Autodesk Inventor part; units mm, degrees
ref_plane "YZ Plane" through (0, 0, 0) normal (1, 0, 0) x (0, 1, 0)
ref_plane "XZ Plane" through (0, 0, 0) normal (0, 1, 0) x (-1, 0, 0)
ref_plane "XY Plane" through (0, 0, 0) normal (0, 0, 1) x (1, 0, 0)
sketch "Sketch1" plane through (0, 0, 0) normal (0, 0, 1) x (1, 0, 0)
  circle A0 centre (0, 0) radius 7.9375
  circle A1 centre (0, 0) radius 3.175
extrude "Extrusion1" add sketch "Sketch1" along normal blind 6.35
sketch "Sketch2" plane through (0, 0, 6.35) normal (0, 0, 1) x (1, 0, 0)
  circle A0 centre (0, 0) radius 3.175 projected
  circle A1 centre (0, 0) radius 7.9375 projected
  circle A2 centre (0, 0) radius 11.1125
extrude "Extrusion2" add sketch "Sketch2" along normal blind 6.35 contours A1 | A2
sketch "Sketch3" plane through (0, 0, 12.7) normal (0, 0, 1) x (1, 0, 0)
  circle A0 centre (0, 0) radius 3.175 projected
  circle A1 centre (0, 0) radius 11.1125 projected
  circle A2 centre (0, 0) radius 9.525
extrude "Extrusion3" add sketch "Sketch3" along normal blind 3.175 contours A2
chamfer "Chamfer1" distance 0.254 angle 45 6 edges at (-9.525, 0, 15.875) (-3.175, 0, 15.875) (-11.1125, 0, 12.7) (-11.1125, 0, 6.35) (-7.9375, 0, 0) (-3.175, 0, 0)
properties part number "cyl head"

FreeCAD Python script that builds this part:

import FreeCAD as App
import Part
import Sketcher
from FreeCAD import Vector
Q = App.Units.Quantity


def edges_at(feature, points):
    """Names of the edges that pass closest to the given points."""
    edges = feature.Shape.Edges
    near = lambda p: min(range(len(edges)), key=lambda i: edges[i].distToShape(Part.Vertex(*p))[0])
    return sorted({f"Edge{near(p) + 1}" for p in points})

doc = App.newDocument("Part")
body = doc.addObject("PartDesign::Body", "Body")

# Sketch on XY plane
sketch1 = body.newObject("Sketcher::SketchObject", "Sketch")
sketch1.AttachmentSupport = (doc.getObject("XY_Plane"), [""])
sketch1.MapMode = "FlatFace"
sketch1.addGeometry([
    Part.Circle(Vector(0, 0, 0), Vector(0, 0, 1), 7.9375),
    Part.Circle(Vector(0, 0, 0), Vector(0, 0, 1), 3.175),
], False)
sketch1.addConstraint([
    Sketcher.Constraint("Coincident", 0, 3, -1, 1),
    Sketcher.Constraint("Coincident", 1, 3, -1, 1),
    Sketcher.Constraint("Diameter", 1, Q("0.25 in")),
    Sketcher.Constraint("Diameter", 0, Q("0.625 in")),
])
pad1 = body.newObject("PartDesign::Pad", "Pad")
pad1.Profile = sketch1
pad1.Length = Q("0.25 in")

# Sketch on XY plane
sketch2 = body.newObject("Sketcher::SketchObject", "Sketch001")
sketch2.AttachmentSupport = (doc.getObject("XY_Plane"), [""])
sketch2.MapMode = "FlatFace"
sketch2.AttachmentOffset = App.Placement(Vector(0, 0, 0.25 * 25.4), App.Rotation())
sketch2.addGeometry([
    Part.Circle(Vector(0, 0, 0), Vector(0, 0, 1), 11.1125),
    Part.Circle(Vector(0, 0, 0), Vector(0, 0, 1), 3.175),
], False)
sketch2.addConstraint([
    Sketcher.Constraint("Coincident", 0, 3, -1, 1),
    Sketcher.Constraint("Coincident", 1, 3, -1, 1),
    Sketcher.Constraint("Diameter", 1, Q("0.25 in")),
    Sketcher.Constraint("Diameter", 0, Q("0.875 in")),
])
pad2 = body.newObject("PartDesign::Pad", "Pad001")
pad2.Profile = sketch2
pad2.Length = Q("0.25 in")

# Sketch on XY plane
sketch3 = body.newObject("Sketcher::SketchObject", "Sketch002")
sketch3.AttachmentSupport = (doc.getObject("XY_Plane"), [""])
sketch3.MapMode = "FlatFace"
sketch3.AttachmentOffset = App.Placement(Vector(0, 0, 0.5 * 25.4), App.Rotation())
sketch3.addGeometry([
    Part.Circle(Vector(0, 0, 0), Vector(0, 0, 1), 9.525),
    Part.Circle(Vector(0, 0, 0), Vector(0, 0, 1), 3.175),
], False)
sketch3.addConstraint([
    Sketcher.Constraint("Coincident", 0, 3, -1, 1),
    Sketcher.Constraint("Coincident", 1, 3, -1, 1),
    Sketcher.Constraint("Diameter", 0, Q("0.75 in")),
    Sketcher.Constraint("Diameter", 1, Q("0.25 in")),
])
pad3 = body.newObject("PartDesign::Pad", "Pad002")
pad3.Profile = sketch3
pad3.Length = Q("0.125 in")
doc.recompute()

chamfer = body.newObject("PartDesign::Chamfer", "Chamfer")
chamfer.Base = (pad3, edges_at(pad3, [
    (-9.525, 0, 15.875),
    (-3.175, 0, 15.875),
    (-11.113, 0, 12.7),
    (-11.113, 0, 6.35),
    (-7.938, 0, 0),
    (-3.175, 0, 0),
]))
chamfer.Size = Q("0.01 in")

doc.recompute()
